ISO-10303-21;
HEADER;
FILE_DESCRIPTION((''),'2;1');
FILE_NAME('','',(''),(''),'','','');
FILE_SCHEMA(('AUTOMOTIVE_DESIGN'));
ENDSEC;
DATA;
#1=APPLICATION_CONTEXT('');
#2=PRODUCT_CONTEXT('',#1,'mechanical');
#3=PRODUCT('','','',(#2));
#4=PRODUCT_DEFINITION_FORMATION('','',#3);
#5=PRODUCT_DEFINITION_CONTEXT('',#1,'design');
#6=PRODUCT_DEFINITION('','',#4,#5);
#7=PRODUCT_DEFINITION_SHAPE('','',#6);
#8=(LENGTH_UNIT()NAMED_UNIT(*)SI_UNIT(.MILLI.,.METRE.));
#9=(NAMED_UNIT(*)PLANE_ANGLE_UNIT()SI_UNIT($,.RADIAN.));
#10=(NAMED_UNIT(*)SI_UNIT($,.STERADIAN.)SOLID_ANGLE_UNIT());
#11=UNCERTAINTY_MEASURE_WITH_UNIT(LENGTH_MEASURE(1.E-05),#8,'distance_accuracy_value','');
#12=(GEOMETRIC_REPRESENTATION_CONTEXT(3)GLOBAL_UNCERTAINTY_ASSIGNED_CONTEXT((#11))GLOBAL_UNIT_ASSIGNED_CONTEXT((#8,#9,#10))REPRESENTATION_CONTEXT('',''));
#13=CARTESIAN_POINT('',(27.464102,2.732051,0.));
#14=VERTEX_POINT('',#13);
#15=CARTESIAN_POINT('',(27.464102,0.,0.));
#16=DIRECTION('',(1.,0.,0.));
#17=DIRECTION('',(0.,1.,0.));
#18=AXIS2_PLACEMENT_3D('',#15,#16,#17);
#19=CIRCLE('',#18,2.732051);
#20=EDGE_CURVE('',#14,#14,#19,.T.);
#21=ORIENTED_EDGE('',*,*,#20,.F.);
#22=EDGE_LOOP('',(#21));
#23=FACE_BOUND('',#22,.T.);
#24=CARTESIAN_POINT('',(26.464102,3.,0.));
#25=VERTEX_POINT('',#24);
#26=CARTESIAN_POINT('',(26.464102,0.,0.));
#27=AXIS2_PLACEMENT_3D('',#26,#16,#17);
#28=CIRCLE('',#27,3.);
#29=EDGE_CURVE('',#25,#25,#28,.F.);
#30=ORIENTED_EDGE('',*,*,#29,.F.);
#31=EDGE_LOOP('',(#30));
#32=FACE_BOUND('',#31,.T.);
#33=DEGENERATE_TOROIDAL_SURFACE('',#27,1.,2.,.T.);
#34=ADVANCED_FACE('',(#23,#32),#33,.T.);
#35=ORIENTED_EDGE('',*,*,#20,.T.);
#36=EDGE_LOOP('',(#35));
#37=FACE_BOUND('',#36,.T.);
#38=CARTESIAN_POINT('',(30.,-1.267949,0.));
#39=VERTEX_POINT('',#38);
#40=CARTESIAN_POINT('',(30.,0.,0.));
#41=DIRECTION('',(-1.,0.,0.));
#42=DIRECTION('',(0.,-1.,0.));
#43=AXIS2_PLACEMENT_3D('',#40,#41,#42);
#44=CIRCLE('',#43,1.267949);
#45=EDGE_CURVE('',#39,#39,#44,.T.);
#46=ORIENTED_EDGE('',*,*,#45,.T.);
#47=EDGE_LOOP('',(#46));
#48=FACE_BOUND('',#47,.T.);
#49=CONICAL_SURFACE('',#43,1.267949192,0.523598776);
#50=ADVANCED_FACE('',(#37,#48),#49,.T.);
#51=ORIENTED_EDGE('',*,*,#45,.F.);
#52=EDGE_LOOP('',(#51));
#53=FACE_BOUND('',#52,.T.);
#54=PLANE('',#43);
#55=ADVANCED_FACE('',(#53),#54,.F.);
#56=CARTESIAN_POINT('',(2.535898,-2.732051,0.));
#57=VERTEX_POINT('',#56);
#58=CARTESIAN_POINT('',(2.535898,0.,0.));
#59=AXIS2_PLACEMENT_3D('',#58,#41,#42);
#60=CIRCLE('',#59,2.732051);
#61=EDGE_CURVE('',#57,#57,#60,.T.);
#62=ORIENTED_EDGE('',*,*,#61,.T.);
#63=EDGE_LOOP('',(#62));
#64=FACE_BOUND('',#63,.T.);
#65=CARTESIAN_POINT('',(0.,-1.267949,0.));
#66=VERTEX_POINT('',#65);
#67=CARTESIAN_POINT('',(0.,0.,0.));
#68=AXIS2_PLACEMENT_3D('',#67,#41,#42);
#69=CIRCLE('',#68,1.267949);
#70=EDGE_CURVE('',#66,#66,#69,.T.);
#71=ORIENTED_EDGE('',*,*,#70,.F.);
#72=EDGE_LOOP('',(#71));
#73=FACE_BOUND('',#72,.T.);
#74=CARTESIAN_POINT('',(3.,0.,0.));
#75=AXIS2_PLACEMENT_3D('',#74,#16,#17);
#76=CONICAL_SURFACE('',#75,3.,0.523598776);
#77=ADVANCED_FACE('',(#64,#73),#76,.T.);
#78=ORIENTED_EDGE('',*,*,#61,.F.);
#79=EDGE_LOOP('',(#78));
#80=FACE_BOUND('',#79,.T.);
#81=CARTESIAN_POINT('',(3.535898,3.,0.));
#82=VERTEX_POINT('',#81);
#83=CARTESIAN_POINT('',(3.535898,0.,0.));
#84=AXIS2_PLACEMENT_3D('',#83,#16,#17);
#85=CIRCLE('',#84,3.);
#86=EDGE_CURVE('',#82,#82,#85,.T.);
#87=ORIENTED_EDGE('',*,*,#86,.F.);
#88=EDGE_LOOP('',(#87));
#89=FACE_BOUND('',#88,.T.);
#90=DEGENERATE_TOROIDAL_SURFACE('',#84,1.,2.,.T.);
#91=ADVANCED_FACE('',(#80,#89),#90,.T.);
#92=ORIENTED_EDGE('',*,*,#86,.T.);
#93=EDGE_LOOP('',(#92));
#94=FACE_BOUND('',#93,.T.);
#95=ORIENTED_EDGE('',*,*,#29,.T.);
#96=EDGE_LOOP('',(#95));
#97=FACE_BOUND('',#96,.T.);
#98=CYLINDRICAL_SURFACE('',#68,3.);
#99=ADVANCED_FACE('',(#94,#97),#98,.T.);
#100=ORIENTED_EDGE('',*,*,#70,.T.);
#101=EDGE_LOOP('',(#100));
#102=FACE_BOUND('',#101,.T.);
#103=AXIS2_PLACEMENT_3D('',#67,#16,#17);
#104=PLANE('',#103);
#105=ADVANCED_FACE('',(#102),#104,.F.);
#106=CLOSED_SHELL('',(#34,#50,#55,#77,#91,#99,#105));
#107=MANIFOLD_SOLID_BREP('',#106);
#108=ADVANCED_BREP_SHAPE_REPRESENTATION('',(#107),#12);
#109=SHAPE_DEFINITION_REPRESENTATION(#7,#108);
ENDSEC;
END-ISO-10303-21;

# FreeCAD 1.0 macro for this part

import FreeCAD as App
import Part
import Sketcher
from FreeCAD import Vector
Q = App.Units.Quantity


def edges_at(feature, points):
    """Names of the edges that pass closest to the given points."""
    edges = feature.Shape.Edges
    near = lambda p: min(range(len(edges)), key=lambda i: edges[i].distToShape(Part.Vertex(*p))[0])
    return sorted({f"Edge{near(p) + 1}" for p in points})

doc = App.newDocument("Part")
params = doc.addObject("Spreadsheet::Sheet", "Params")
for row, (alias, value) in enumerate([
    ("sketch1_width", "30 mm"),
    ("sketch1_width2", "24 mm"),
    ("revolution_angle", "360 deg"),
    ("fillet_radius", "2 mm"),
], start=1):
    params.set(f"A{row}", alias)
    params.set(f"B{row}", "=" + value)
    params.setAlias(f"B{row}", alias)

body = doc.addObject("PartDesign::Body", "Body")

sketch1 = body.newObject("Sketcher::SketchObject", "Sketch")
sketch1.AttachmentSupport = (doc.getObject("XY_Plane"), [""])
sketch1.MapMode = "FlatFace"
sketch1.addGeometry([
    Part.LineSegment(Vector(0, 1.3, 0), Vector(0, 0, 0)),
    Part.LineSegment(Vector(0, 0, 0), Vector(30, 0, 0)),
    Part.LineSegment(Vector(30, 0, 0), Vector(30, 1.3, 0)),
    Part.LineSegment(Vector(30, 1.3, 0), Vector(27, 3, 0)),
    Part.LineSegment(Vector(27, 3, 0), Vector(3, 3, 0)),
    Part.LineSegment(Vector(3, 3, 0), Vector(0, 1.3, 0)),
], False)
sketch1.addConstraint([
    Sketcher.Constraint("Coincident", 0, 2, 1, 1),
    Sketcher.Constraint("Coincident", 1, 2, 2, 1),
    Sketcher.Constraint("Coincident", 2, 2, 3, 1),
    Sketcher.Constraint("Coincident", 3, 2, 4, 1),
    Sketcher.Constraint("Coincident", 4, 2, 5, 1),
    Sketcher.Constraint("Coincident", 5, 2, 0, 1),
    Sketcher.Constraint("Vertical", 0),
    Sketcher.Constraint("Horizontal", 1),
    Sketcher.Constraint("Vertical", 2),
    Sketcher.Constraint("Horizontal", 4),
    Sketcher.Constraint("Coincident", 0, 2, -1, 1),
    Sketcher.Constraint("Horizontal", 2, 2, 5, 2),
    Sketcher.Constraint("Equal", 3, 5),
    Sketcher.Constraint("DistanceX", 1, 1, 1, 2, Q("30 mm")),
    Sketcher.Constraint("DistanceX", 4, 2, 4, 1, Q("24 mm")),
    Sketcher.Constraint("Angle", 3, Q("150 deg")),
    Sketcher.Constraint("DistanceY", -1, 1, 3, 2, Q("3 mm")),
])
sketch1.setExpression("Constraints[13]", "Params.sketch1_width")
sketch1.setExpression("Constraints[14]", "Params.sketch1_width2")
revolution = body.newObject("PartDesign::Revolution", "Revolution")
revolution.Profile = sketch1
revolution.ReferenceAxis = (sketch1, ["H_Axis"])
revolution.setExpression("Angle", "Params.revolution_angle")
doc.recompute()

fillet = body.newObject("PartDesign::Fillet", "Fillet")
fillet.Base = (revolution, edges_at(revolution, [(3, 3, 0), (27, 3, 0)]))
fillet.setExpression("Radius", "Params.fillet_radius")

doc.recompute()
